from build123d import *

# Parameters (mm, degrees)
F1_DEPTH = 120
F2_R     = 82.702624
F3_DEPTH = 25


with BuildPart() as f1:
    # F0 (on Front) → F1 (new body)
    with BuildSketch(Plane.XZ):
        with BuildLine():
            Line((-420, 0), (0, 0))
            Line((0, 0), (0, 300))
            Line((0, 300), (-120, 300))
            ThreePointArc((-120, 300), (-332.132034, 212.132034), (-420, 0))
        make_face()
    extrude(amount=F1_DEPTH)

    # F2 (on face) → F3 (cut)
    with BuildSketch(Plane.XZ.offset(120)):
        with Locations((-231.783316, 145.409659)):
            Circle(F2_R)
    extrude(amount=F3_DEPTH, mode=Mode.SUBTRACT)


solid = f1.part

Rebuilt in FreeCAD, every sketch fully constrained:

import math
import FreeCAD as App
import Part
import Sketcher
Q = App.Units.Quantity

doc = App.newDocument("Part")
params = doc.addObject("Spreadsheet::Sheet", "Params")
for row, (alias, value) in enumerate([
    ("sketch1_radius", "300.000001 mm"),
    ("sketch1_width", "420 mm"),
    ("pad1_length", "120 mm"),
    ("pocket1_length", "25 mm"),
], start=1):
    params.set(f"A{row}", alias)
    params.set(f"B{row}", "=" + value)
    params.setAlias(f"B{row}", alias)

body = doc.addObject("PartDesign::Body", "Body")

# Sketch on XZ plane
sketch1 = body.newObject("Sketcher::SketchObject", "Sketch")
sketch1.AttachmentSupport = (doc.getObject("XZ_Plane"), [""])
sketch1.MapMode = "FlatFace"
sketch1.addGeometry([
    Part.LineSegment(App.Vector(-420, 0, 0), App.Vector(0, 0, 0)),
    Part.LineSegment(App.Vector(0, 0, 0), App.Vector(0, 300, 0)),
    Part.LineSegment(App.Vector(0, 300, 0), App.Vector(-120, 300, 0)),
    Part.ArcOfCircle(Part.Circle(App.Vector(-120, 0, 0), App.Vector(0, 0, 1), 300), math.radians(90), math.radians(180)),
], False)
sketch1.addConstraint([
    Sketcher.Constraint("Coincident", 0, 2, 1, 1),
    Sketcher.Constraint("Coincident", 1, 2, 2, 1),
    Sketcher.Constraint("Tangent", 2, 2, 3, 1),
    Sketcher.Constraint("Coincident", 3, 2, 0, 1),
    Sketcher.Constraint("Horizontal", 0),
    Sketcher.Constraint("Vertical", 1),
    Sketcher.Constraint("Horizontal", 2),
    Sketcher.Constraint("Coincident", 0, 2, -1, 1),
    Sketcher.Constraint("PointOnObject", 3, 3, -1),
    Sketcher.Constraint("Radius", 3, Q("300.000001 mm")),
    Sketcher.Constraint("DistanceX", 0, 1, 0, 2, Q("420 mm")),
])
sketch1.setExpression("Constraints[9]", "Params.sketch1_radius")
sketch1.setExpression("Constraints[10]", "Params.sketch1_width")
pad1 = body.newObject("PartDesign::Pad", "Pad")
pad1.Profile = sketch1
pad1.setExpression("Length", "Params.pad1_length")

# Sketch on XZ plane
sketch2 = body.newObject("Sketcher::SketchObject", "Sketch001")
sketch2.AttachmentSupport = (doc.getObject("XZ_Plane"), [""])
sketch2.MapMode = "FlatFace"
sketch2.AttachmentOffset = App.Placement(App.Vector(0, 0, 120), App.Rotation())
sketch2.addGeometry(Part.Circle(App.Vector(-232, 145, 0), App.Vector(0, 0, 1), 83), False)
sketch2.addConstraint([
    Sketcher.Constraint("Diameter", 0, Q("165.405248 mm")),
    Sketcher.Constraint("DistanceY", -1, 1, 0, 3, Q("145.409659 mm")),
    Sketcher.Constraint("DistanceX", 0, 3, -1, 1, Q("231.783316 mm")),
])
pocket1 = body.newObject("PartDesign::Pocket", "Pocket")
pocket1.Profile = sketch2
pocket1.setExpression("Length", "Params.pocket1_length")
pocket1.Reversed = True

doc.recompute()
